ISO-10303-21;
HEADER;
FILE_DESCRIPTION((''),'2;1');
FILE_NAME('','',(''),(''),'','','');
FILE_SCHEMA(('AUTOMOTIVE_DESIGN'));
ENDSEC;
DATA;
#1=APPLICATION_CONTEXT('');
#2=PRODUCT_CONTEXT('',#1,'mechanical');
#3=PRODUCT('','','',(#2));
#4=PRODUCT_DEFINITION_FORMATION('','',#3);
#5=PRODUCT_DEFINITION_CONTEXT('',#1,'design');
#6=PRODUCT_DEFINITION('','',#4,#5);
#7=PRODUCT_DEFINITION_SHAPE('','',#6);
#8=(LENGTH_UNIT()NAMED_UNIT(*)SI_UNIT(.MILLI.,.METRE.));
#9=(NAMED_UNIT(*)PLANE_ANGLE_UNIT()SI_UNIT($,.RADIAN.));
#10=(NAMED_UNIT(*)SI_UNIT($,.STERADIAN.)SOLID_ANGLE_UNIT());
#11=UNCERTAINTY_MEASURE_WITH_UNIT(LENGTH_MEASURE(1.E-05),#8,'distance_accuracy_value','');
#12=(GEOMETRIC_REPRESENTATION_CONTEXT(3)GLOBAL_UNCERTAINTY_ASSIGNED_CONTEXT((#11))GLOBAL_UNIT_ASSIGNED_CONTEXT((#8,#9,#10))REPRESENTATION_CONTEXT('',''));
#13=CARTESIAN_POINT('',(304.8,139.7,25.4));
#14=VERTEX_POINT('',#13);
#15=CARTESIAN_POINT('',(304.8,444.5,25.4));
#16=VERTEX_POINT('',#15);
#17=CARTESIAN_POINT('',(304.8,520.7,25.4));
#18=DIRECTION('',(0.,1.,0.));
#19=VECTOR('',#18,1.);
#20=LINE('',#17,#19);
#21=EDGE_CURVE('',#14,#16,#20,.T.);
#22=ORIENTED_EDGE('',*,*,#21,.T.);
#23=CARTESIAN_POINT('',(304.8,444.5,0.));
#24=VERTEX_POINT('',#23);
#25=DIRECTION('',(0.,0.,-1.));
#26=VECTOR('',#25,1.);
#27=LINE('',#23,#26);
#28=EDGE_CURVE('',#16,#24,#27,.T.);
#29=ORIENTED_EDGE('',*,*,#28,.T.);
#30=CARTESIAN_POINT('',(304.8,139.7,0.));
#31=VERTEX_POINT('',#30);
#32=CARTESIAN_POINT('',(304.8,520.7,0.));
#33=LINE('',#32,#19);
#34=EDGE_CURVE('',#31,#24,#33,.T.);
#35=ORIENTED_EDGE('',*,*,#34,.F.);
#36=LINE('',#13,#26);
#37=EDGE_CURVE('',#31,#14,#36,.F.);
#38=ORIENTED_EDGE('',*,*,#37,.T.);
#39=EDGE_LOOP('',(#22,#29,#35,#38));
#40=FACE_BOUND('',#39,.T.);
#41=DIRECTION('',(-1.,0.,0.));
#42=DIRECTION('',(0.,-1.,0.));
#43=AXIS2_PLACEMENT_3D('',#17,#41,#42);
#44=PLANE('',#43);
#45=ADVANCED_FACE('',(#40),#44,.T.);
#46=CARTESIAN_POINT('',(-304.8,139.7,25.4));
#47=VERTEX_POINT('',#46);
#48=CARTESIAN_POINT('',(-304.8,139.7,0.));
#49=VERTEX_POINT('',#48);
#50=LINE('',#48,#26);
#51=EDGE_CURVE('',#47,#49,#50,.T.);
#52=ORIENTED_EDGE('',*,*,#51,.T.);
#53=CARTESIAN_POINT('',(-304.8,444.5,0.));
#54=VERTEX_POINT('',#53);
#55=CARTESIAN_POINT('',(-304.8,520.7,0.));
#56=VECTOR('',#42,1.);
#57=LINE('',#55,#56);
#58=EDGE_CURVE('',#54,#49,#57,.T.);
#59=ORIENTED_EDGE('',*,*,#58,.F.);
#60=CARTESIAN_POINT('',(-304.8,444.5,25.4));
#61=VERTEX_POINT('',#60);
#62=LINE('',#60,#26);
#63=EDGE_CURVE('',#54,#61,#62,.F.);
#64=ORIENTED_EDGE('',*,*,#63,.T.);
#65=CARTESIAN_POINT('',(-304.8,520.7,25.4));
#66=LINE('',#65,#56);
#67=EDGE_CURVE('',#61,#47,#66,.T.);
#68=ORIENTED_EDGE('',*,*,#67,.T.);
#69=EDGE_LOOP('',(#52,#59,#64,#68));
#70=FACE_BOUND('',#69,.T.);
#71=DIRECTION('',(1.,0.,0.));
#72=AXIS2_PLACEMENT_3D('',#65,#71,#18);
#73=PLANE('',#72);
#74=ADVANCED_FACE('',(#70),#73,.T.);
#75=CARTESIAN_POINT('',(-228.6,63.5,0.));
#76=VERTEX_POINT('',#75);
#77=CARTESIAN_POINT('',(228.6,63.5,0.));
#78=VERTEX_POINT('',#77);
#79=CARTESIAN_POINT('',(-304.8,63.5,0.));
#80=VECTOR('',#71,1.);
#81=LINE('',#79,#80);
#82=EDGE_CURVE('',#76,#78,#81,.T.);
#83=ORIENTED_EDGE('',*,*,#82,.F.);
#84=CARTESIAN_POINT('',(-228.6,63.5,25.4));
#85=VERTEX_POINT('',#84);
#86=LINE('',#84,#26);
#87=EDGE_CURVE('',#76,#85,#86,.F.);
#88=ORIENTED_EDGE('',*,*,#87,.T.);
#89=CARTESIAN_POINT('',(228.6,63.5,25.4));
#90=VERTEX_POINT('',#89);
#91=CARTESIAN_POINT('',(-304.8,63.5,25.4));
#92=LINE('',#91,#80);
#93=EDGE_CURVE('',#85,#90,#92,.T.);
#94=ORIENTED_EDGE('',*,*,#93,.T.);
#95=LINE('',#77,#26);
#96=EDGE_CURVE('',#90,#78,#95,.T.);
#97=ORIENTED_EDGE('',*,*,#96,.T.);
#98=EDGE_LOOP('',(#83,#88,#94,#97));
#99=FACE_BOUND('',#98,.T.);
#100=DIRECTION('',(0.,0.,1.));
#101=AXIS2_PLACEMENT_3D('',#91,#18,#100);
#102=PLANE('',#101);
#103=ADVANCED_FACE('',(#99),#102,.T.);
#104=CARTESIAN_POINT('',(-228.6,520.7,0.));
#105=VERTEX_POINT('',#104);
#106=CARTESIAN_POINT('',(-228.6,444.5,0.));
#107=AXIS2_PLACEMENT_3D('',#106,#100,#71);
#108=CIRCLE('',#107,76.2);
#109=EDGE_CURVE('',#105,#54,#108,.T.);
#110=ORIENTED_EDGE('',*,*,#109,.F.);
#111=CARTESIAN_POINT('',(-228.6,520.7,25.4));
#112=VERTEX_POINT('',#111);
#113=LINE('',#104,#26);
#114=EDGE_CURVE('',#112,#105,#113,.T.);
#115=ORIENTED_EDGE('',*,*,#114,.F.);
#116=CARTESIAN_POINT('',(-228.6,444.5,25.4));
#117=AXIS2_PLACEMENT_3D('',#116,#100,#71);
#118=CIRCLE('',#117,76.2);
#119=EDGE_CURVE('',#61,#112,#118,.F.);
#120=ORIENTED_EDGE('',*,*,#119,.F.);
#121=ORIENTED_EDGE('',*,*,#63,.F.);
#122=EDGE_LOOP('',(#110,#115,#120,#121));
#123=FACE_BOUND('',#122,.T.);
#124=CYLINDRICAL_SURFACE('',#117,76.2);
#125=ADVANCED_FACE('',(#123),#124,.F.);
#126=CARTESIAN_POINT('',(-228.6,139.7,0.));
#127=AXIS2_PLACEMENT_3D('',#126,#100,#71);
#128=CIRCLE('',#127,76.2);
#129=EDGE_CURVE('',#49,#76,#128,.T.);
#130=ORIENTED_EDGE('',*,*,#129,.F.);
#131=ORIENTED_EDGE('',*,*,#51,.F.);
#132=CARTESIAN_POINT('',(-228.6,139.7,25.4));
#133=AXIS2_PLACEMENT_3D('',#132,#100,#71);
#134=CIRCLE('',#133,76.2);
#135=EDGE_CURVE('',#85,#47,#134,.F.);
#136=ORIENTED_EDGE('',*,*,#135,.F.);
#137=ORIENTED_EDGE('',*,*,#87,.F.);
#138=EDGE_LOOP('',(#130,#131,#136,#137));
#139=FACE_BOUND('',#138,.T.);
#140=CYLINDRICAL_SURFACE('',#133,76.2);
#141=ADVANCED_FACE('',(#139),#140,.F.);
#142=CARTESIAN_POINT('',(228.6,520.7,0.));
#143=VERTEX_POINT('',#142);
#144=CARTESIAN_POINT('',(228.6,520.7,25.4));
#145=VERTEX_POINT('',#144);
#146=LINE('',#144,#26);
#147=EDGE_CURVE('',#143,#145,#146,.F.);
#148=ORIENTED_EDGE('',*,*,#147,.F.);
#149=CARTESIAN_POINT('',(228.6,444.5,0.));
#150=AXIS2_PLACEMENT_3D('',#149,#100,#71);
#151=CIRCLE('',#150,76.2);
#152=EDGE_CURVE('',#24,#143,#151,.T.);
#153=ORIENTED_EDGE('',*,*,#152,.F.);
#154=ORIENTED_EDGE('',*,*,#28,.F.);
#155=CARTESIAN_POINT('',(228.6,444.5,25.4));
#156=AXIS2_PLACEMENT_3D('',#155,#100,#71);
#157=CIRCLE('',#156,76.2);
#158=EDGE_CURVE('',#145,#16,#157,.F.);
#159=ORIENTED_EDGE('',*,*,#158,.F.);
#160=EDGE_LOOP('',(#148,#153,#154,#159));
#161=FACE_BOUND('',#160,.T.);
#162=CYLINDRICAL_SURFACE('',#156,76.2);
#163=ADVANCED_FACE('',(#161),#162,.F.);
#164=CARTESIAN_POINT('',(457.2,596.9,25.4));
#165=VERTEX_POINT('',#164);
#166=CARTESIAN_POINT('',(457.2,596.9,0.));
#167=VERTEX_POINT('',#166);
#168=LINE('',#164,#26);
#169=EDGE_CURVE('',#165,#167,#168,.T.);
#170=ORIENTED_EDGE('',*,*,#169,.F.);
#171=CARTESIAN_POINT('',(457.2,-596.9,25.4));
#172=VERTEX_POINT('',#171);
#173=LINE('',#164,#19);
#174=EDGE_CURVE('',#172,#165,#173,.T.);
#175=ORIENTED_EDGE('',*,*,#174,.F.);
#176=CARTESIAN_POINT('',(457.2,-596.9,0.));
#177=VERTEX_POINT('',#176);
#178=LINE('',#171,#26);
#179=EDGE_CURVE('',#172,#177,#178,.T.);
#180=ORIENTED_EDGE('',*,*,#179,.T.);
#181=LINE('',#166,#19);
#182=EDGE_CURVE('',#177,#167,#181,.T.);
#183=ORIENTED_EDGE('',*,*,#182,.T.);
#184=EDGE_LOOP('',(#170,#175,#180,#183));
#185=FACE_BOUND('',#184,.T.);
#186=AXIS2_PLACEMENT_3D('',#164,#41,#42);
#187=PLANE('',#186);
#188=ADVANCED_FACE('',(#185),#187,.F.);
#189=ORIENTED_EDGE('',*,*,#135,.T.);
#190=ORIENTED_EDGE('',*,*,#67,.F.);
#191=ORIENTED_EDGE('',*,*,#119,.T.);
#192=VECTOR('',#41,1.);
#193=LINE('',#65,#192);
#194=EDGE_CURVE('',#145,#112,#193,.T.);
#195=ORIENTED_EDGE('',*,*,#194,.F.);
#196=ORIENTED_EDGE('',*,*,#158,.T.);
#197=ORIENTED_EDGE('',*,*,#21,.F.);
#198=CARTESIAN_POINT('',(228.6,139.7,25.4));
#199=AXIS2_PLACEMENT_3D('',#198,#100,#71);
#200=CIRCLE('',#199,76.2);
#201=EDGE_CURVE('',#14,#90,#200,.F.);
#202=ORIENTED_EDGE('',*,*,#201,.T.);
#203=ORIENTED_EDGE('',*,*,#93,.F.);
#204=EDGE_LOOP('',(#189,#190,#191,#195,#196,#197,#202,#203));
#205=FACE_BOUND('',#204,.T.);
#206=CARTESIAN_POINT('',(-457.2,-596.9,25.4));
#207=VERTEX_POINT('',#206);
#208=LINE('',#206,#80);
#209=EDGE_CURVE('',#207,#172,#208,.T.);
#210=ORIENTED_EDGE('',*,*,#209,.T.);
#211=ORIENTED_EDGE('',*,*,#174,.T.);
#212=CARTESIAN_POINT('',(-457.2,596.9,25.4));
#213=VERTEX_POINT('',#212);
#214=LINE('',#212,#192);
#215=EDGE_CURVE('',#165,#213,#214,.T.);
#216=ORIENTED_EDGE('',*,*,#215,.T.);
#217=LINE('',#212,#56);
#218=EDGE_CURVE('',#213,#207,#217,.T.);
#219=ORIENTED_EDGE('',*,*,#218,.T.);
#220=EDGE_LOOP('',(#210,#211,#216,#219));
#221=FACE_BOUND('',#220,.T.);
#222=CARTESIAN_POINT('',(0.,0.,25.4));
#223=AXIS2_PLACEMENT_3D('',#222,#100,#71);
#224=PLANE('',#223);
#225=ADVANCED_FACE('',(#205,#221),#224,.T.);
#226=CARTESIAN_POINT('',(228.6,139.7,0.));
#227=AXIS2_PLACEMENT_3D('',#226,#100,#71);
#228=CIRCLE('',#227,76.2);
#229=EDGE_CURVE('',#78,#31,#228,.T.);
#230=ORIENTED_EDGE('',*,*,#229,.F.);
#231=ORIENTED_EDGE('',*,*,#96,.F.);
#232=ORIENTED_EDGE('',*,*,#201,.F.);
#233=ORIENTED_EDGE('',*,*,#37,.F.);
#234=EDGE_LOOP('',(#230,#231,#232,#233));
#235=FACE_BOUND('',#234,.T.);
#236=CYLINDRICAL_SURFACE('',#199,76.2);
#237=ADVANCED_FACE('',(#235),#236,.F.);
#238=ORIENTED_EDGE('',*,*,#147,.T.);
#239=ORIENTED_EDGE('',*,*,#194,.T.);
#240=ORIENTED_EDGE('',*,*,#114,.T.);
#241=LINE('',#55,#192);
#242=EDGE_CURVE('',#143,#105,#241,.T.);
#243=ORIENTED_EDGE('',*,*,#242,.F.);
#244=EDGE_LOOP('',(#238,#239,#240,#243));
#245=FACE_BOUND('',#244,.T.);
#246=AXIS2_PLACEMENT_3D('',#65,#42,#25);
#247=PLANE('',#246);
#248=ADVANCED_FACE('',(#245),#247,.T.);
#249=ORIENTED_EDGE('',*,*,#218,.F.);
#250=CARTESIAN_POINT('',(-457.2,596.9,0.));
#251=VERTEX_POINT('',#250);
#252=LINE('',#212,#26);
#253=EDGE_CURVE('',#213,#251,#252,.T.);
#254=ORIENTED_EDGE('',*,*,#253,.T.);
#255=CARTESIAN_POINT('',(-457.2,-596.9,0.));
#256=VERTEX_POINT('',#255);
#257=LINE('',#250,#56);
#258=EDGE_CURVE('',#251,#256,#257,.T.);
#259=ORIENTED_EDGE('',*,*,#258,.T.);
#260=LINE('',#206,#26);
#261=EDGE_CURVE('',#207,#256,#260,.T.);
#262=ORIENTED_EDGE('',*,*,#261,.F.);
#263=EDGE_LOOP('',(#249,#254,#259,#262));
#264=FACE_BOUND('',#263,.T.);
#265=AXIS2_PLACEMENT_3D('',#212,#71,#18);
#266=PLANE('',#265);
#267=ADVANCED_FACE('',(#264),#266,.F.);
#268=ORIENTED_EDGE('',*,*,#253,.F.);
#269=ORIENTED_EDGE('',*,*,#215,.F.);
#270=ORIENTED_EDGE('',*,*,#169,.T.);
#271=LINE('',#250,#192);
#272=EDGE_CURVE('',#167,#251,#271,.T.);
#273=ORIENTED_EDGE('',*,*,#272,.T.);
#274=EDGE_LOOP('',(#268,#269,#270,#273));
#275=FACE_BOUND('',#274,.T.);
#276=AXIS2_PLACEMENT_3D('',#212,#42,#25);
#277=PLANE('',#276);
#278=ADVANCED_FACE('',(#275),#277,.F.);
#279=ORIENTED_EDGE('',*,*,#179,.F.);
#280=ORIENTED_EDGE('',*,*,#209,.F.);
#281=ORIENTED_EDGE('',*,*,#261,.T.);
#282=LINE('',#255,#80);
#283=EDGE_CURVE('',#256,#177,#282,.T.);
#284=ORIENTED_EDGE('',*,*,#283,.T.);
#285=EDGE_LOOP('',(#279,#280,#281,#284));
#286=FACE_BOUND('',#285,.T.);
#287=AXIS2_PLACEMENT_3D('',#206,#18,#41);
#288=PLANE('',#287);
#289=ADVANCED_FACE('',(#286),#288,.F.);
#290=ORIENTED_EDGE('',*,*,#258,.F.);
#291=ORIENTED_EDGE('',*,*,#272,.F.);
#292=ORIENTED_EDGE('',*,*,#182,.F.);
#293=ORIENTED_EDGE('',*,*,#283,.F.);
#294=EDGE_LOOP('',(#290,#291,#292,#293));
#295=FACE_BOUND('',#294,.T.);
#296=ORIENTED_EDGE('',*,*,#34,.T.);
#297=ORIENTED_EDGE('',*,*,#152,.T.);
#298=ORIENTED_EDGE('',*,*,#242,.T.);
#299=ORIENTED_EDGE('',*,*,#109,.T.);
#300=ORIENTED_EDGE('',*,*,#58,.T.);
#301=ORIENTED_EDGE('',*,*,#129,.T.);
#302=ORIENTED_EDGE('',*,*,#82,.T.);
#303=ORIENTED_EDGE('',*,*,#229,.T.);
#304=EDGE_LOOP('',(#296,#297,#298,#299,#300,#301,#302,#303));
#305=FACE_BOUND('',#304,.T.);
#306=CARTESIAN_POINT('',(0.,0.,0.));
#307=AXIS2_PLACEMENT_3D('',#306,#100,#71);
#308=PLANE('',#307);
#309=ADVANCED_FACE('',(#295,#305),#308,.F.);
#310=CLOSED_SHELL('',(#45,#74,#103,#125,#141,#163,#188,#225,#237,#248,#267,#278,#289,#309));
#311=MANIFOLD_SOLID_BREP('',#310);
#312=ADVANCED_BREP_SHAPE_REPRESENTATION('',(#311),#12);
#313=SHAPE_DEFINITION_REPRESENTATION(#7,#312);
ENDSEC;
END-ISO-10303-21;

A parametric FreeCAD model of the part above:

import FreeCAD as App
import Part
import Sketcher
Q = App.Units.Quantity


def edges_at(feature, points):
    """Names of the edges that pass closest to the given points."""
    edges = feature.Shape.Edges
    near = lambda p: min(range(len(edges)), key=lambda i: edges[i].distToShape(Part.Vertex(*p))[0])
    return sorted({f"Edge{near(p) + 1}" for p in points})


def add_polygon(sketch, points):
    """Adds a closed chain of lines whose ends are joined by coincident constraints."""
    first, n = sketch.GeometryCount, len(points)
    for a, b in zip(points, points[1:] + points[:1]):
        sketch.addGeometry(Part.LineSegment(App.Vector(*a, 0), App.Vector(*b, 0)), False)
    for i in range(n):
        sketch.addConstraint(Sketcher.Constraint("Coincident", first + i, 2, first + (i + 1) % n, 1))

doc = App.newDocument("Part")
body = doc.addObject("PartDesign::Body", "Body")

# Sketch on XY plane
sketch1 = doc.addObject("Sketcher::SketchObject", "Sketch")
body.addObject(sketch1)
sketch1.AttachmentSupport = (doc.XY_Plane, [""])
sketch1.MapMode = "FlatFace"
add_polygon(sketch1, [(-457, 597), (-457, -597), (457, -597), (457, 597)])  # lines 0-3
add_polygon(sketch1, [(305, 64), (-305, 64), (-305, 521), (305, 521)])  # lines 4-7
sketch1.addConstraint(Sketcher.Constraint("Vertical", 0))
sketch1.addConstraint(Sketcher.Constraint("Horizontal", 1))
sketch1.addConstraint(Sketcher.Constraint("Vertical", 2))
sketch1.addConstraint(Sketcher.Constraint("Horizontal", 3))
sketch1.addConstraint(Sketcher.Constraint("Horizontal", 4))
sketch1.addConstraint(Sketcher.Constraint("Vertical", 5))
sketch1.addConstraint(Sketcher.Constraint("Horizontal", 6))
sketch1.addConstraint(Sketcher.Constraint("Vertical", 7))
sketch1.addConstraint(Sketcher.Constraint("Symmetric", 0, 2, 2, 2, -1, 1))
sketch1.addConstraint(Sketcher.Constraint("DistanceX", 1, 1, 1, 2, Q("36 in")))
sketch1.addConstraint(Sketcher.Constraint("DistanceX", 4, 2, 4, 1, Q("24 in")))
sketch1.addConstraint(Sketcher.Constraint("DistanceY", 0, 2, 0, 1, Q("47 in")))
sketch1.addConstraint(Sketcher.Constraint("DistanceY", 5, 1, 5, 2, Q("18 in")))
sketch1.addConstraint(Sketcher.Constraint("DistanceX", 4, 2, -1, 1, Q("12 in")))
sketch1.addConstraint(Sketcher.Constraint("DistanceY", 4, 2, 3, 2, Q("21 in")))
pad1 = doc.addObject("PartDesign::Pad", "Pad")
body.addObject(pad1)
pad1.Profile = sketch1
pad1.Length = Q("1 in")
doc.recompute()

fillet = doc.addObject("PartDesign::Fillet", "Fillet")
body.addObject(fillet)
fillet.Base = (pad1, edges_at(pad1, [
    (304.8, 63.5, 12.7),
    (304.8, 520.7, 12.7),
    (-304.8, 520.7, 12.7),
    (-304.8, 63.5, 12.7),
]))
fillet.Radius = Q("3 in")

doc.recompute()
